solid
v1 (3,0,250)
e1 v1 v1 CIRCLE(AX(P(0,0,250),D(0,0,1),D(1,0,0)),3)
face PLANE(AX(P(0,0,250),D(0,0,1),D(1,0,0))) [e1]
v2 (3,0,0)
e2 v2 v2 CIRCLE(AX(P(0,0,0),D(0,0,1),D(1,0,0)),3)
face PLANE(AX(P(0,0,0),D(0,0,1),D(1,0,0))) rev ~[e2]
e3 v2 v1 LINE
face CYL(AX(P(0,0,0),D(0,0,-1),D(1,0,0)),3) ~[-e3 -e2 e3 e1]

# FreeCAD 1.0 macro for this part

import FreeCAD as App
import Part
import Sketcher

doc = App.newDocument("Part")
body = doc.addObject("PartDesign::Body", "Body")

# Sketch on XY plane
sketch1 = body.newObject("Sketcher::SketchObject", "Sketch")
sketch1.AttachmentSupport = (doc.getObject("XY_Plane"), [""])
sketch1.MapMode = "FlatFace"
sketch1.addGeometry(Part.Circle(App.Vector(0, 0, 0), App.Vector(0, 0, 1), 3), False)
sketch1.addConstraint([
    Sketcher.Constraint("Coincident", 0, 3, -1, 1),
    Sketcher.Constraint("Diameter", 0, 6.0),
])
pad1 = body.newObject("PartDesign::Pad", "Pad")
pad1.Profile = sketch1
pad1.Length = 250

doc.recompute()
